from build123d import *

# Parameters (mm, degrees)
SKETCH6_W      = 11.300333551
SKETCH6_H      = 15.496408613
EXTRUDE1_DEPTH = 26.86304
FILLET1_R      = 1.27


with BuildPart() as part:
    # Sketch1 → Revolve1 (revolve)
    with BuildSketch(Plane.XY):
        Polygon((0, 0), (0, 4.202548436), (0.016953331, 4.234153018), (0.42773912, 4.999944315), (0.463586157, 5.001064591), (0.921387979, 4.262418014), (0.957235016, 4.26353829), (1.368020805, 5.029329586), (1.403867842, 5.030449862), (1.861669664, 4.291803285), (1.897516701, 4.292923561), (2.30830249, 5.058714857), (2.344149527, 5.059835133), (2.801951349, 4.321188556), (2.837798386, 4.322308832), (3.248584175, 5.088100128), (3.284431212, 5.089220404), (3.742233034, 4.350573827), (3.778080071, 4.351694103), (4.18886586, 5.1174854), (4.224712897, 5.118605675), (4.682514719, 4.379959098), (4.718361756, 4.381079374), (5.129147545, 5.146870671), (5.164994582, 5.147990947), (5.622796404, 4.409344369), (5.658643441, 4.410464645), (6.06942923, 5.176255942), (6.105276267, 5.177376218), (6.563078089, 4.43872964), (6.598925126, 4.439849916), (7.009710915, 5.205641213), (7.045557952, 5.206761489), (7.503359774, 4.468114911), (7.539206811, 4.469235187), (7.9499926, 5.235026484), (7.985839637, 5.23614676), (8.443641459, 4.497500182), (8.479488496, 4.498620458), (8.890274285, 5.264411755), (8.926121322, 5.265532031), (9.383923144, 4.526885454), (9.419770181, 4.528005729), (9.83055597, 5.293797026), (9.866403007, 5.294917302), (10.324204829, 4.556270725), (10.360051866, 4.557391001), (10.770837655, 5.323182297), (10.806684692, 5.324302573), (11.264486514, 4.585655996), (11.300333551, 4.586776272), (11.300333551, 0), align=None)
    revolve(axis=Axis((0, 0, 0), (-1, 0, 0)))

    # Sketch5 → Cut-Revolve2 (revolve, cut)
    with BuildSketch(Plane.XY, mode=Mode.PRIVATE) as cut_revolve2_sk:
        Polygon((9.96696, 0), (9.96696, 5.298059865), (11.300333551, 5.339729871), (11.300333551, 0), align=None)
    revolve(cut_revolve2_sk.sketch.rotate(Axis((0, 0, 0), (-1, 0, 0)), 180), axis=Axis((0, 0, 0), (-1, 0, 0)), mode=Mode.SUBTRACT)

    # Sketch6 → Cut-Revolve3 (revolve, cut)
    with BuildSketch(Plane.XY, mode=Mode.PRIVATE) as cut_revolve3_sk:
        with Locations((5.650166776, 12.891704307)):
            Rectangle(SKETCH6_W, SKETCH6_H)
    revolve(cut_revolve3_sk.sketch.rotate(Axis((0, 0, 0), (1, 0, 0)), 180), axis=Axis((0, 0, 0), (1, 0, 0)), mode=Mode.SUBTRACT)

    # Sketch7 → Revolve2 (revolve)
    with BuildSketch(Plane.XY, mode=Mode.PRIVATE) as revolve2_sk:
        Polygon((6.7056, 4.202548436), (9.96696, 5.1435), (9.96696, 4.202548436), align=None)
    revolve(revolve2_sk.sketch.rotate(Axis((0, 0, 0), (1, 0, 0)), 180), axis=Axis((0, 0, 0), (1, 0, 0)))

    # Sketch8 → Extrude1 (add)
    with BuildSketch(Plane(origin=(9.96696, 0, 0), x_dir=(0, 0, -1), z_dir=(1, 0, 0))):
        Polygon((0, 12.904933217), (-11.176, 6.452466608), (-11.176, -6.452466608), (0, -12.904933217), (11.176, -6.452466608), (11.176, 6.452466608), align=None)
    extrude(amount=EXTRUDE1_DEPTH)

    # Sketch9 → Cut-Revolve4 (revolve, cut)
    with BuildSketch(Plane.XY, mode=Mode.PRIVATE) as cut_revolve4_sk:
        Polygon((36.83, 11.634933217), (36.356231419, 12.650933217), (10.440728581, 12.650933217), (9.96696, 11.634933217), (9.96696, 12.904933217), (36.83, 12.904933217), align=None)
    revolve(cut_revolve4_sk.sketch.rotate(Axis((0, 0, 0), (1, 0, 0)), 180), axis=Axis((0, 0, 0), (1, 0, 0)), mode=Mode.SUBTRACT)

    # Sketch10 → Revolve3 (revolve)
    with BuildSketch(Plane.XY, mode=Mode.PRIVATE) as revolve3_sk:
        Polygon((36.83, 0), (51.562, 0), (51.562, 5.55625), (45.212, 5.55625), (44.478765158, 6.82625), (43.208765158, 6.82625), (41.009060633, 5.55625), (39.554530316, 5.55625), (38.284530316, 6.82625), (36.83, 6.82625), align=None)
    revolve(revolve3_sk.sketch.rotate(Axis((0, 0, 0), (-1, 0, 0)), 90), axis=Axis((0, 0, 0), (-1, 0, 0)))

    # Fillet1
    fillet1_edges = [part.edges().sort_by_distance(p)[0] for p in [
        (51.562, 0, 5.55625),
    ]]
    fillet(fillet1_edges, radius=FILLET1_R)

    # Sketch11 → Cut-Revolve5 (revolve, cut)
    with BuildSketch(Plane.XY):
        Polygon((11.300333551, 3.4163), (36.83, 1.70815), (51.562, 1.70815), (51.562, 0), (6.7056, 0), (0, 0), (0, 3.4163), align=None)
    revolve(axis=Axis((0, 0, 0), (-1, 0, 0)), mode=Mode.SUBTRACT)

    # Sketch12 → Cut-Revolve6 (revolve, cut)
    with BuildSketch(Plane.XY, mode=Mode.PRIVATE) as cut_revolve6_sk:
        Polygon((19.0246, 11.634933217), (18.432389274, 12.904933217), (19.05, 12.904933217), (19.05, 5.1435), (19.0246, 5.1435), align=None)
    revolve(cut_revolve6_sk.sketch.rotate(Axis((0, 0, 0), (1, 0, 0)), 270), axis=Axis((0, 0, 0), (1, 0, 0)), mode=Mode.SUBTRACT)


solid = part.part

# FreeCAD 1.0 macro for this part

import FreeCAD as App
import Part
import Sketcher
from FreeCAD import Vector
Q = App.Units.Quantity


def edges_at(feature, points):
    """Names of the edges that pass closest to the given points."""
    edges = feature.Shape.Edges
    near = lambda p: min(range(len(edges)), key=lambda i: edges[i].distToShape(Part.Vertex(*p))[0])
    return sorted({f"Edge{near(p) + 1}" for p in points})


def add_polygon(sketch, points):
    """Adds a closed chain of lines whose ends are joined by coincident constraints."""
    first, n = sketch.GeometryCount, len(points)
    for a, b in zip(points, points[1:] + points[:1]):
        sketch.addGeometry(Part.LineSegment(App.Vector(*a, 0), App.Vector(*b, 0)), False)
    for i in range(n):
        sketch.addConstraint(Sketcher.Constraint("Coincident", first + i, 2, first + (i + 1) % n, 1))

doc = App.newDocument("Part")
params = doc.addObject("Spreadsheet::Sheet", "Params")
for row, (alias, value) in enumerate([
    ("revolution_angle", "360 deg"),
    ("groove_angle", "360 deg"),
    ("groove2_angle", "360 deg"),
    ("revolution2_angle", "360 deg"),
    ("pad1_length", "1.0576 in"),
    ("sketch6_height", "0.05 in"),
    ("groove3_angle", "360 deg"),
    ("sketch7_length", "0.1 in"),
    ("sketch7_width", "0.58 in"),
    ("sketch7_width2", "0.25 in"),
    ("sketch7_width3", "0.05 in"),
    ("sketch7_height", "0.21875 in"),
    ("revolution3_angle", "360 deg"),
    ("fillet_radius", "0.05 in"),
    ("sketch8_width", "2.03 in"),
    ("sketch8_width2", "0.58 in"),
    ("groove4_angle", "360 deg"),
    ("sketch9_width", "0.001 in"),
    ("groove5_angle", "360 deg"),
], start=1):
    params.set(f"A{row}", alias)
    params.set(f"B{row}", "=" + value)
    params.setAlias(f"B{row}", alias)

body = doc.addObject("PartDesign::Body", "Body")

# Sketch on XY plane
sketch1 = body.newObject("Sketcher::SketchObject", "Sketch")
sketch1.AttachmentSupport = (doc.getObject("XY_Plane"), [""])
sketch1.MapMode = "FlatFace"
add_polygon(sketch1, [(0, 4.203), (0, 0), (11.3, 0), (11.3, 4.587), (11.264, 4.586), (10.807, 5.324), (10.771, 5.323), (10.36, 4.557), (10.324, 4.556), (9.866, 5.295), (9.831, 5.294), (9.42, 4.528), (9.384, 4.527), (8.926, 5.266), (8.89, 5.264), (8.479, 4.499), (8.444, 4.498), (7.986, 5.236), (7.95, 5.235), (7.539, 4.469), (7.503, 4.468), (7.046, 5.207), (7.01, 5.206), (6.599, 4.44), (6.563, 4.439), (6.105, 5.177), (6.069, 5.176), (5.659, 4.41), (5.623, 4.409), (5.165, 5.148), (5.129, 5.147), (4.718, 4.381), (4.683, 4.38), (4.225, 5.119), (4.189, 5.117), (3.778, 4.352), (3.742, 4.351), (3.284, 5.089), (3.249, 5.088), (2.838, 4.322), (2.802, 4.321), (2.344, 5.06), (2.308, 5.059), (1.898, 4.293), (1.862, 4.292), (1.404, 5.03), (1.368, 5.029), (0.957, 4.264), (0.921, 4.262), (0.464, 5.001), (0.428, 5), (0.017, 4.234)])  # lines 0-51
sketch1.addConstraint(Sketcher.Constraint("Vertical", 0))
sketch1.addConstraint(Sketcher.Constraint("Horizontal", 1))
sketch1.addConstraint(Sketcher.Constraint("Vertical", 2))
sketch1.addConstraint(Sketcher.Constraint("Coincident", 0, 2, -1, 1))
sketch1.addConstraint(Sketcher.Constraint("Parallel", 3, 5))
sketch1.addConstraint(Sketcher.Constraint("Parallel", 5, 7))
sketch1.addConstraint(Sketcher.Constraint("Parallel", 4, 8))
sketch1.addConstraint(Sketcher.Constraint("Parallel", 7, 9))
sketch1.addConstraint(Sketcher.Constraint("Parallel", 6, 10))
sketch1.addConstraint(Sketcher.Constraint("Parallel", 9, 11))
sketch1.addConstraint(Sketcher.Constraint("Parallel", 8, 12))
sketch1.addConstraint(Sketcher.Constraint("Parallel", 11, 13))
sketch1.addConstraint(Sketcher.Constraint("Parallel", 10, 14))
sketch1.addConstraint(Sketcher.Constraint("Parallel", 13, 15))
sketch1.addConstraint(Sketcher.Constraint("Parallel", 12, 16))
sketch1.addConstraint(Sketcher.Constraint("Parallel", 15, 17))
sketch1.addConstraint(Sketcher.Constraint("Parallel", 14, 18))
sketch1.addConstraint(Sketcher.Constraint("Parallel", 17, 19))
sketch1.addConstraint(Sketcher.Constraint("Parallel", 16, 20))
sketch1.addConstraint(Sketcher.Constraint("Parallel", 19, 21))
sketch1.addConstraint(Sketcher.Constraint("Parallel", 18, 22))
sketch1.addConstraint(Sketcher.Constraint("Parallel", 21, 23))
sketch1.addConstraint(Sketcher.Constraint("Parallel", 20, 24))
sketch1.addConstraint(Sketcher.Constraint("Parallel", 23, 25))
sketch1.addConstraint(Sketcher.Constraint("Parallel", 22, 26))
sketch1.addConstraint(Sketcher.Constraint("Parallel", 25, 27))
sketch1.addConstraint(Sketcher.Constraint("Parallel", 24, 28))
sketch1.addConstraint(Sketcher.Constraint("Parallel", 27, 29))
sketch1.addConstraint(Sketcher.Constraint("Parallel", 26, 30))
sketch1.addConstraint(Sketcher.Constraint("Parallel", 29, 31))
sketch1.addConstraint(Sketcher.Constraint("Parallel", 28, 32))
sketch1.addConstraint(Sketcher.Constraint("Parallel", 31, 33))
sketch1.addConstraint(Sketcher.Constraint("Parallel", 30, 34))
sketch1.addConstraint(Sketcher.Constraint("Parallel", 33, 35))
sketch1.addConstraint(Sketcher.Constraint("Parallel", 32, 36))
sketch1.addConstraint(Sketcher.Constraint("Parallel", 35, 37))
sketch1.addConstraint(Sketcher.Constraint("Parallel", 34, 38))
sketch1.addConstraint(Sketcher.Constraint("Parallel", 37, 39))
sketch1.addConstraint(Sketcher.Constraint("Parallel", 36, 40))
sketch1.addConstraint(Sketcher.Constraint("Parallel", 39, 41))
sketch1.addConstraint(Sketcher.Constraint("Parallel", 38, 42))
sketch1.addConstraint(Sketcher.Constraint("Parallel", 41, 43))
sketch1.addConstraint(Sketcher.Constraint("Parallel", 40, 44))
sketch1.addConstraint(Sketcher.Constraint("Parallel", 43, 45))
sketch1.addConstraint(Sketcher.Constraint("Parallel", 42, 46))
sketch1.addConstraint(Sketcher.Constraint("Parallel", 45, 47))
sketch1.addConstraint(Sketcher.Constraint("Parallel", 44, 48))
sketch1.addConstraint(Sketcher.Constraint("Parallel", 47, 49))
sketch1.addConstraint(Sketcher.Constraint("Parallel", 46, 50))
sketch1.addConstraint(Sketcher.Constraint("Parallel", 50, 51))
sketch1.addConstraint(Sketcher.Constraint("Equal", 3, 5))
sketch1.addConstraint(Sketcher.Constraint("Equal", 4, 6))
sketch1.addConstraint(Sketcher.Constraint("Equal", 5, 7))
sketch1.addConstraint(Sketcher.Constraint("Equal", 6, 8))
sketch1.addConstraint(Sketcher.Constraint("Equal", 7, 9))
sketch1.addConstraint(Sketcher.Constraint("Equal", 8, 10))
sketch1.addConstraint(Sketcher.Constraint("Equal", 9, 11))
sketch1.addConstraint(Sketcher.Constraint("Equal", 10, 12))
sketch1.addConstraint(Sketcher.Constraint("Equal", 11, 13))
sketch1.addConstraint(Sketcher.Constraint("Equal", 12, 14))
sketch1.addConstraint(Sketcher.Constraint("Equal", 13, 15))
sketch1.addConstraint(Sketcher.Constraint("Equal", 14, 16))
sketch1.addConstraint(Sketcher.Constraint("Equal", 15, 17))
sketch1.addConstraint(Sketcher.Constraint("Equal", 16, 18))
sketch1.addConstraint(Sketcher.Constraint("Equal", 17, 19))
sketch1.addConstraint(Sketcher.Constraint("Equal", 18, 20))
sketch1.addConstraint(Sketcher.Constraint("Equal", 19, 21))
sketch1.addConstraint(Sketcher.Constraint("Equal", 20, 22))
sketch1.addConstraint(Sketcher.Constraint("Equal", 21, 23))
sketch1.addConstraint(Sketcher.Constraint("Equal", 22, 24))
sketch1.addConstraint(Sketcher.Constraint("Equal", 23, 25))
sketch1.addConstraint(Sketcher.Constraint("Equal", 24, 26))
sketch1.addConstraint(Sketcher.Constraint("Equal", 25, 27))
sketch1.addConstraint(Sketcher.Constraint("Equal", 26, 28))
sketch1.addConstraint(Sketcher.Constraint("Equal", 27, 29))
sketch1.addConstraint(Sketcher.Constraint("Equal", 28, 30))
sketch1.addConstraint(Sketcher.Constraint("Equal", 29, 31))
sketch1.addConstraint(Sketcher.Constraint("Equal", 30, 32))
sketch1.addConstraint(Sketcher.Constraint("Equal", 31, 33))
sketch1.addConstraint(Sketcher.Constraint("Equal", 32, 34))
sketch1.addConstraint(Sketcher.Constraint("Equal", 33, 35))
sketch1.addConstraint(Sketcher.Constraint("Equal", 34, 36))
sketch1.addConstraint(Sketcher.Constraint("Equal", 35, 37))
sketch1.addConstraint(Sketcher.Constraint("Equal", 36, 38))
sketch1.addConstraint(Sketcher.Constraint("Equal", 37, 39))
sketch1.addConstraint(Sketcher.Constraint("Equal", 38, 40))
sketch1.addConstraint(Sketcher.Constraint("Equal", 39, 41))
sketch1.addConstraint(Sketcher.Constraint("Equal", 40, 42))
sketch1.addConstraint(Sketcher.Constraint("Equal", 41, 43))
sketch1.addConstraint(Sketcher.Constraint("Equal", 42, 44))
sketch1.addConstraint(Sketcher.Constraint("Equal", 43, 45))
sketch1.addConstraint(Sketcher.Constraint("Equal", 44, 46))
sketch1.addConstraint(Sketcher.Constraint("Equal", 45, 47))
sketch1.addConstraint(Sketcher.Constraint("Equal", 46, 48))
sketch1.addConstraint(Sketcher.Constraint("Equal", 47, 49))
sketch1.addConstraint(Sketcher.Constraint("Equal", 48, 50))
sketch1.addConstraint(Sketcher.Constraint("Equal", 49, 51))
sketch1.addConstraint(Sketcher.Constraint("Angle", 3, Q("-178.21 deg")))
sketch1.addConstraint(Sketcher.Constraint("Angle", 4, Q("121.79 deg")))
sketch1.addConstraint(Sketcher.Constraint("Angle", 6, Q("-118.21 deg")))
sketch1.addConstraint(Sketcher.Constraint("DistanceY", 0, 2, 0, 1, Q("4.202548 mm")))
sketch1.addConstraint(Sketcher.Constraint("DistanceY", -1, 1, 15, 2, Q("4.4975 mm")))
sketch1.addConstraint(Sketcher.Constraint("DistanceY", -1, 1, 37, 2, Q("5.0881 mm")))
revolution = body.newObject("PartDesign::Revolution", "Revolution")
revolution.Profile = sketch1
revolution.ReferenceAxis = (sketch1, ["H_Axis"])
revolution.setExpression("Angle", "Params.revolution_angle")

# Sketch on XY plane
sketch2 = body.newObject("Sketcher::SketchObject", "Sketch001")
sketch2.AttachmentSupport = (doc.getObject("XY_Plane"), [""])
sketch2.MapMode = "FlatFace"
add_polygon(sketch2, [(10, 5.3), (10, 0), (11.3, 0), (11.3, 5.3)])  # lines 0-3
sketch2.addConstraint(Sketcher.Constraint("Vertical", 0))
sketch2.addConstraint(Sketcher.Constraint("Horizontal", 1))
sketch2.addConstraint(Sketcher.Constraint("Vertical", 2))
sketch2.addConstraint(Sketcher.Constraint("PointOnObject", 0, 2, -1))
sketch2.addConstraint(Sketcher.Constraint("Angle", 3, Q("-178.21 deg")))
sketch2.addConstraint(Sketcher.Constraint("DistanceX", -1, 1, 0, 2, Q("0.3924 in")))
sketch2.addConstraint(Sketcher.Constraint("DistanceY", 0, 2, 0, 1, Q("5.29806 mm")))
sketch2.addConstraint(Sketcher.Constraint("DistanceY", 2, 1, 2, 2, Q("5.33973 mm")))
groove = body.newObject("PartDesign::Groove", "Groove")
groove.Profile = sketch2
groove.ReferenceAxis = (sketch2, ["H_Axis"])
groove.setExpression("Angle", "Params.groove_angle")

# Sketch on XY plane
sketch3 = body.newObject("Sketcher::SketchObject", "Sketch002")
sketch3.AttachmentSupport = (doc.getObject("XY_Plane"), [""])
sketch3.MapMode = "FlatFace"
add_polygon(sketch3, [(0, 21), (0, 5), (11, 5), (11, 21)])  # lines 0-3
sketch3.addConstraint(Sketcher.Constraint("Vertical", 0))
sketch3.addConstraint(Sketcher.Constraint("Horizontal", 1))
sketch3.addConstraint(Sketcher.Constraint("Vertical", 2))
sketch3.addConstraint(Sketcher.Constraint("Horizontal", 3))
sketch3.addConstraint(Sketcher.Constraint("PointOnObject", 0, 2, -2))
sketch3.addConstraint(Sketcher.Constraint("DistanceY", -1, 1, 0, 2, Q("0.2025 in")))
sketch3.addConstraint(Sketcher.Constraint("DistanceY", 0, 2, 0, 1, Q("15.496409 mm")))
sketch3.addConstraint(Sketcher.Constraint("DistanceX", 1, 1, 1, 2, Q("11.300334 mm")))
groove2 = body.newObject("PartDesign::Groove", "Groove001")
groove2.Profile = sketch3
groove2.ReferenceAxis = (sketch3, ["H_Axis"])
groove2.setExpression("Angle", "Params.groove2_angle")

# Sketch on XY plane
sketch4 = body.newObject("Sketcher::SketchObject", "Sketch003")
sketch4.AttachmentSupport = (doc.getObject("XY_Plane"), [""])
sketch4.MapMode = "FlatFace"
add_polygon(sketch4, [(10, 5.1), (6.7, 4.2), (10, 4.2)])  # lines 0-2
sketch4.addConstraint(Sketcher.Constraint("Horizontal", 1))
sketch4.addConstraint(Sketcher.Constraint("Vertical", 2))
sketch4.addConstraint(Sketcher.Constraint("DistanceX", 1, 1, 1, 2, Q("0.1284 in")))
sketch4.addConstraint(Sketcher.Constraint("DistanceX", -1, 1, 0, 2, Q("0.264 in")))
sketch4.addConstraint(Sketcher.Constraint("DistanceY", -1, 1, 2, 2, Q("0.2025 in")))
sketch4.addConstraint(Sketcher.Constraint("DistanceY", 2, 1, 2, 2, Q("0.940952 mm")))
revolution2 = body.newObject("PartDesign::Revolution", "Revolution001")
revolution2.Profile = sketch4
revolution2.ReferenceAxis = (sketch4, ["H_Axis"])
revolution2.setExpression("Angle", "Params.revolution2_angle")

# Sketch on YZ plane
sketch5 = body.newObject("Sketcher::SketchObject", "Sketch004")
sketch5.AttachmentSupport = (doc.getObject("YZ_Plane"), [""])
sketch5.MapMode = "FlatFace"
sketch5.AttachmentOffset = App.Placement(Vector(0, 0, 0.3924 * 25.4), App.Rotation())
add_polygon(sketch5, [(13, 0), (6, 11), (-6, 11), (-13, 0), (-6, -11), (6, -11)])  # lines 0-5
sketch5.addConstraint(Sketcher.Constraint("Horizontal", 1))
sketch5.addConstraint(Sketcher.Constraint("Horizontal", 4))
sketch5.addConstraint(Sketcher.Constraint("Symmetric", 0, 2, 3, 2, -1, 1))
sketch5.addConstraint(Sketcher.Constraint("Symmetric", 2, 2, 5, 2, -1, 1))
sketch5.addConstraint(Sketcher.Constraint("PointOnObject", 2, 2, -1))
sketch5.addConstraint(Sketcher.Constraint("Parallel", 2, 5))
sketch5.addConstraint(Sketcher.Constraint("Vertical", 1, 2, 3, 2))
sketch5.addConstraint(Sketcher.Constraint("Angle", 0, Q("120 deg")))
sketch5.addConstraint(Sketcher.Constraint("DistanceY", -1, 1, 0, 2, Q("0.44 in")))
sketch5.addConstraint(Sketcher.Constraint("DistanceX", 2, 2, 0, 2, Q("19.3574 mm")))
pad1 = body.newObject("PartDesign::Pad", "Pad")
pad1.Profile = sketch5
pad1.setExpression("Length", "Params.pad1_length")

# Sketch on XY plane
sketch6 = body.newObject("Sketcher::SketchObject", "Sketch005")
sketch6.AttachmentSupport = (doc.getObject("XY_Plane"), [""])
sketch6.MapMode = "FlatFace"
add_polygon(sketch6, [(36.4, 12.7), (36.8, 11.6), (36.8, 12.9), (10, 12.9), (10, 11.6), (10.4, 12.7)])  # lines 0-5
sketch6.addConstraint(Sketcher.Constraint("Vertical", 1))
sketch6.addConstraint(Sketcher.Constraint("Horizontal", 2))
sketch6.addConstraint(Sketcher.Constraint("Vertical", 3))
sketch6.addConstraint(Sketcher.Constraint("Horizontal", 5))
sketch6.addConstraint(Sketcher.Constraint("Horizontal", 0, 2, 3, 2))
sketch6.addConstraint(Sketcher.Constraint("Equal", 0, 4))
sketch6.addConstraint(Sketcher.Constraint("Angle", 0, Q("-65 deg")))
sketch6.addConstraint(Sketcher.Constraint("DistanceY", 1, 1, 1, 2, Q("0.05 in")))
sketch6.addConstraint(Sketcher.Constraint("DistanceX", -1, 1, 0, 2, Q("1.45 in")))
sketch6.addConstraint(Sketcher.Constraint("DistanceY", 4, 2, 2, 2, Q("0.01 in")))
sketch6.addConstraint(Sketcher.Constraint("DistanceX", 2, 2, 2, 1, Q("1.0576 in")))
sketch6.addConstraint(Sketcher.Constraint("DistanceY", -1, 1, 0, 2, Q("11.634933 mm")))
sketch6.setExpression("Constraints[13]", "Params.sketch6_height")
groove3 = body.newObject("PartDesign::Groove", "Groove002")
groove3.Profile = sketch6
groove3.ReferenceAxis = (sketch6, ["H_Axis"])
groove3.setExpression("Angle", "Params.groove3_angle")

# Sketch on XY plane
sketch7 = body.newObject("Sketcher::SketchObject", "Sketch006")
sketch7.AttachmentSupport = (doc.getObject("XY_Plane"), [""])
sketch7.MapMode = "FlatFace"
add_polygon(sketch7, [(36.8, 0), (51.6, 0), (51.6, 5.6), (45.2, 5.6), (44.5, 6.8), (43.2, 6.8), (41, 5.6), (39.6, 5.6), (38.3, 6.8), (36.8, 6.8)])  # lines 0-9
sketch7.addConstraint(Sketcher.Constraint("Horizontal", 0))
sketch7.addConstraint(Sketcher.Constraint("Vertical", 1))
sketch7.addConstraint(Sketcher.Constraint("Horizontal", 2))
sketch7.addConstraint(Sketcher.Constraint("Horizontal", 4))
sketch7.addConstraint(Sketcher.Constraint("Horizontal", 6))
sketch7.addConstraint(Sketcher.Constraint("Horizontal", 8))
sketch7.addConstraint(Sketcher.Constraint("Vertical", 9))
sketch7.addConstraint(Sketcher.Constraint("PointOnObject", 0, 2, -1))
sketch7.addConstraint(Sketcher.Constraint("Perpendicular", 3, 5))
sketch7.addConstraint(Sketcher.Constraint("Horizontal", 2, 2, 5, 2))
sketch7.addConstraint(Sketcher.Constraint("Horizontal", 4, 2, 7, 2))
sketch7.addConstraint(Sketcher.Constraint("Equal", 6, 8))
sketch7.addConstraint(Sketcher.Constraint("Angle", 3, Q("120 deg")))
sketch7.addConstraint(Sketcher.Constraint("Angle", 7, Q("135 deg")))
sketch7.addConstraint(Sketcher.Constraint("Distance", 5, Q("0.1 in")))
sketch7.addConstraint(Sketcher.Constraint("DistanceX", 0, 1, 0, 2, Q("0.58 in")))
sketch7.addConstraint(Sketcher.Constraint("DistanceX", 2, 2, 2, 1, Q("0.25 in")))
sketch7.addConstraint(Sketcher.Constraint("DistanceX", 4, 2, 4, 1, Q("0.05 in")))
sketch7.addConstraint(Sketcher.Constraint("DistanceY", 1, 1, 1, 2, Q("0.21875 in")))
sketch7.addConstraint(Sketcher.Constraint("DistanceX", -1, 1, 0, 2, Q("2.03 in")))
sketch7.setExpression("Constraints[24]", "Params.sketch7_length")
sketch7.setExpression("Constraints[25]", "Params.sketch7_width")
sketch7.setExpression("Constraints[26]", "Params.sketch7_width2")
sketch7.setExpression("Constraints[27]", "Params.sketch7_width3")
sketch7.setExpression("Constraints[28]", "Params.sketch7_height")
revolution3 = body.newObject("PartDesign::Revolution", "Revolution002")
revolution3.Profile = sketch7
revolution3.ReferenceAxis = (sketch7, ["H_Axis"])
revolution3.setExpression("Angle", "Params.revolution3_angle")
doc.recompute()

fillet = body.newObject("PartDesign::Fillet", "Fillet")
fillet.Base = (revolution3, edges_at(revolution3, [(51.562, 0, 5.556)]))
fillet.setExpression("Radius", "Params.fillet_radius")

# Sketch on XY plane
sketch8 = body.newObject("Sketcher::SketchObject", "Sketch007")
sketch8.AttachmentSupport = (doc.getObject("XY_Plane"), [""])
sketch8.MapMode = "FlatFace"
add_polygon(sketch8, [(36.8, 1.7), (11.3, 3.4), (0, 3.4), (0, 0), (51.6, 0), (51.6, 1.7)])  # lines 0-5
sketch8.addConstraint(Sketcher.Constraint("Horizontal", 1))
sketch8.addConstraint(Sketcher.Constraint("Vertical", 2))
sketch8.addConstraint(Sketcher.Constraint("Horizontal", 3))
sketch8.addConstraint(Sketcher.Constraint("Vertical", 4))
sketch8.addConstraint(Sketcher.Constraint("Horizontal", 5))
sketch8.addConstraint(Sketcher.Constraint("Coincident", 2, 2, -1, 1))
sketch8.addConstraint(Sketcher.Constraint("DistanceX", 3, 1, 3, 2, Q("2.03 in")))
sketch8.addConstraint(Sketcher.Constraint("DistanceX", 5, 2, 5, 1, Q("0.58 in")))
sketch8.addConstraint(Sketcher.Constraint("DistanceY", 2, 2, 2, 1, Q("0.1345 in")))
sketch8.addConstraint(Sketcher.Constraint("DistanceY", 4, 1, 4, 2, Q("1.70815 mm")))
sketch8.addConstraint(Sketcher.Constraint("DistanceX", 1, 2, 1, 1, Q("11.300334 mm")))
sketch8.setExpression("Constraints[12]", "Params.sketch8_width")
sketch8.setExpression("Constraints[13]", "Params.sketch8_width2")
groove4 = body.newObject("PartDesign::Groove", "Groove003")
groove4.Profile = sketch8
groove4.ReferenceAxis = (sketch8, ["H_Axis"])
groove4.setExpression("Angle", "Params.groove4_angle")

# Sketch on XY plane
sketch9 = body.newObject("Sketcher::SketchObject", "Sketch008")
sketch9.AttachmentSupport = (doc.getObject("XY_Plane"), [""])
sketch9.MapMode = "FlatFace"
add_polygon(sketch9, [(18.432, 12.905), (19.025, 11.635), (19.025, 5.144), (19.05, 5.144), (19.05, 12.905)])  # lines 0-4
sketch9.addConstraint(Sketcher.Constraint("Vertical", 1))
sketch9.addConstraint(Sketcher.Constraint("Horizontal", 2))
sketch9.addConstraint(Sketcher.Constraint("Vertical", 3))
sketch9.addConstraint(Sketcher.Constraint("Horizontal", 4))
sketch9.addConstraint(Sketcher.Constraint("Angle", 0, Q("-65 deg")))
sketch9.addConstraint(Sketcher.Constraint("DistanceX", 2, 1, 2, 2, Q("0.001 in")))
sketch9.addConstraint(Sketcher.Constraint("DistanceX", -1, 1, 2, 2, Q("0.75 in")))
sketch9.addConstraint(Sketcher.Constraint("DistanceY", 0, 2, 3, 2, Q("0.05 in")))
sketch9.addConstraint(Sketcher.Constraint("DistanceY", -1, 1, 1, 2, Q("0.2025 in")))
sketch9.addConstraint(Sketcher.Constraint("DistanceY", 1, 2, 1, 1, Q("6.491433 mm")))
sketch9.setExpression("Constraints[10]", "Params.sketch9_width")
groove5 = body.newObject("PartDesign::Groove", "Groove004")
groove5.Profile = sketch9
groove5.ReferenceAxis = (sketch9, ["H_Axis"])
groove5.setExpression("Angle", "Params.groove5_angle")

doc.recompute()
